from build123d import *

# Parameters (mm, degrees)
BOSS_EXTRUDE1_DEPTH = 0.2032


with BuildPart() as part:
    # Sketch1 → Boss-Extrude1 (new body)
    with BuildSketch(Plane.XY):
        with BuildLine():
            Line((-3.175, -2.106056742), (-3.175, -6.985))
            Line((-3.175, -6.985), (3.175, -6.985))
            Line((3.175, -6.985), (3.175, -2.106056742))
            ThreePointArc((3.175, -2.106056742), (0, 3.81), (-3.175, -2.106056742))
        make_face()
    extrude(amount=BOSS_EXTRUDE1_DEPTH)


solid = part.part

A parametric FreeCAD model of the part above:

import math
import FreeCAD as App
import Part
import Sketcher

V = App.Vector
Q = App.Units.Quantity

doc = App.newDocument("Part")
body = doc.addObject("PartDesign::Body", "Body")

sketch1 = body.newObject("Sketcher::SketchObject", "Sketch")
sketch1.AttachmentSupport = (doc.getObject("XY_Plane"), [""])
sketch1.MapMode = "FlatFace"
sketch1.addGeometry([
    Part.LineSegment(V(-3.2, -2.1, 0), V(-3.2, -7, 0)),
    Part.LineSegment(V(-3.2, -7, 0), V(3.2, -7, 0)),
    Part.LineSegment(V(3.2, -7, 0), V(3.2, -2.1, 0)),
    Part.ArcOfCircle(Part.Circle(V(0, 0, 0), V(0, 0, 1), 3.8), math.radians(-34), math.radians(214)),
], False)
sketch1.addConstraint([
    Sketcher.Constraint("Coincident", 0, 2, 1, 1),
    Sketcher.Constraint("Coincident", 1, 2, 2, 1),
    Sketcher.Constraint("Coincident", 2, 2, 3, 1),
    Sketcher.Constraint("Coincident", 3, 2, 0, 1),
    Sketcher.Constraint("Vertical", 0),
    Sketcher.Constraint("Horizontal", 1),
    Sketcher.Constraint("Vertical", 2),
    Sketcher.Constraint("Coincident", 3, 3, -1, 1),
    Sketcher.Constraint("Horizontal", 2, 2, 3, 2),
    Sketcher.Constraint("Radius", 3, Q("0.15 in")),
    Sketcher.Constraint("DistanceX", 1, 1, 1, 2, Q("0.25 in")),
    Sketcher.Constraint("DistanceY", 0, 2, -1, 1, Q("0.275 in")),
])
pad1 = body.newObject("PartDesign::Pad", "Pad")
pad1.Profile = sketch1
pad1.Length = Q("0.008 in")

doc.recompute()
